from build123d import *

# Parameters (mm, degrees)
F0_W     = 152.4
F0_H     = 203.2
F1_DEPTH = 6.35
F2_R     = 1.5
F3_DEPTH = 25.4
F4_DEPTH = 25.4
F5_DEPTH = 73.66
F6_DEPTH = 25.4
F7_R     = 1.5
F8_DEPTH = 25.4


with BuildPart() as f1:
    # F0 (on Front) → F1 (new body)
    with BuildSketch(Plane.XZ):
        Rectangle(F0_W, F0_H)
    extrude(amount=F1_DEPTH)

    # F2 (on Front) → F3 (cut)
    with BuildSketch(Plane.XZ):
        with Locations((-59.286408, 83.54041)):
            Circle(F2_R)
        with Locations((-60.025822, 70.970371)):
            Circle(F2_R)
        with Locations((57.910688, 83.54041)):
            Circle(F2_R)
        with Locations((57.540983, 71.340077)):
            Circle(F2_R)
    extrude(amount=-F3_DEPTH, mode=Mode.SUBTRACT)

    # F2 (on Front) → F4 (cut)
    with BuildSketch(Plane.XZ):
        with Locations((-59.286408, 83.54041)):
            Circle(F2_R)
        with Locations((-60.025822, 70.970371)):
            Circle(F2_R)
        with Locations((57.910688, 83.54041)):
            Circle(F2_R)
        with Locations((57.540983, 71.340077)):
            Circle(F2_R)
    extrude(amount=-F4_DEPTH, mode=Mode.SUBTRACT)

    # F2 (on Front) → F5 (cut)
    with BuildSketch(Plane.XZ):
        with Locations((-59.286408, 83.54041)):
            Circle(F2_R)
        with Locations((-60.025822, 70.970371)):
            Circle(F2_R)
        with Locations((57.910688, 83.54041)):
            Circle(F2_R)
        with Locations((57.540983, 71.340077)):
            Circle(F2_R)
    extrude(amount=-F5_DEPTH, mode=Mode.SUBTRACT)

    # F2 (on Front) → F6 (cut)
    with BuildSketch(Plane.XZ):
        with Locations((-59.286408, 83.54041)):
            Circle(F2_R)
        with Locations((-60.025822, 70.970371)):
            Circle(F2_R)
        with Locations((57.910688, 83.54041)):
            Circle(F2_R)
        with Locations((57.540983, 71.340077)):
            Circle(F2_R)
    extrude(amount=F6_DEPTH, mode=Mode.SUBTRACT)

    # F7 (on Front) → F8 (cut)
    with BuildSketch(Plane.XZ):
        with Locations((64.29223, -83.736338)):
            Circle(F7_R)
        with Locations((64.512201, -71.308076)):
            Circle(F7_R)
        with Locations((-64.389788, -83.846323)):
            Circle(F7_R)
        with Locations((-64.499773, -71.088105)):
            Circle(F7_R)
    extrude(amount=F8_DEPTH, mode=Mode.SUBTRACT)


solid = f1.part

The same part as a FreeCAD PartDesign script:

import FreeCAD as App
import Part
import Sketcher
Q = App.Units.Quantity

doc = App.newDocument("Part")
body = doc.addObject("PartDesign::Body", "Body")

sketch1 = body.newObject("Sketcher::SketchObject", "Sketch")
sketch1.AttachmentSupport = (doc.getObject("XZ_Plane"), [""])
sketch1.MapMode = "FlatFace"
sketch1.addGeometry([
    Part.LineSegment(App.Vector(-76, 102, 0), App.Vector(-76, -102, 0)),
    Part.LineSegment(App.Vector(-76, -102, 0), App.Vector(76, -102, 0)),
    Part.LineSegment(App.Vector(76, -102, 0), App.Vector(76, 102, 0)),
    Part.LineSegment(App.Vector(76, 102, 0), App.Vector(-76, 102, 0)),
], False)
sketch1.addConstraint([
    Sketcher.Constraint("Coincident", 0, 2, 1, 1),
    Sketcher.Constraint("Coincident", 1, 2, 2, 1),
    Sketcher.Constraint("Coincident", 2, 2, 3, 1),
    Sketcher.Constraint("Coincident", 3, 2, 0, 1),
    Sketcher.Constraint("Vertical", 0),
    Sketcher.Constraint("Horizontal", 1),
    Sketcher.Constraint("Vertical", 2),
    Sketcher.Constraint("Horizontal", 3),
    Sketcher.Constraint("Symmetric", 0, 2, 2, 2, -1, 1),
    Sketcher.Constraint("DistanceX", 1, 1, 1, 2, Q("6 in")),
    Sketcher.Constraint("DistanceY", 0, 2, 0, 1, Q("8 in")),
])
pad1 = body.newObject("PartDesign::Pad", "Pad")
pad1.Profile = sketch1
pad1.Length = Q("0.25 in")

sketch2 = body.newObject("Sketcher::SketchObject", "Sketch001")
sketch2.AttachmentSupport = (doc.getObject("XZ_Plane"), [""])
sketch2.MapMode = "FlatFace"
sketch2.addGeometry([
    Part.Circle(App.Vector(-59.3, 83.5, 0), App.Vector(0, 0, 1), 1.5),
    Part.Circle(App.Vector(-60, 71, 0), App.Vector(0, 0, 1), 1.5),
    Part.Circle(App.Vector(57.9, 83.5, 0), App.Vector(0, 0, 1), 1.5),
    Part.Circle(App.Vector(57.5, 71.3, 0), App.Vector(0, 0, 1), 1.5),
], False)
sketch2.addConstraint([
    Sketcher.Constraint("Equal", 0, 1),
    Sketcher.Constraint("Equal", 1, 2),
    Sketcher.Constraint("Equal", 2, 3),
    Sketcher.Constraint("Horizontal", 0, 3, 2, 3),
    Sketcher.Constraint("Diameter", 0, 3.0),
    Sketcher.Constraint("DistanceX", 0, 3, -1, 1, 59.286408),
    Sketcher.Constraint("DistanceY", -1, 1, 0, 3, 83.54041),
    Sketcher.Constraint("DistanceX", 1, 3, -1, 1, 60.025822),
    Sketcher.Constraint("DistanceY", -1, 1, 1, 3, 70.970371),
    Sketcher.Constraint("DistanceX", 1, 3, 2, 3, 117.93651),
    Sketcher.Constraint("DistanceX", 0, 3, 3, 3, 116.827391),
    Sketcher.Constraint("DistanceY", -1, 1, 3, 3, 71.340077),
])
pocket1 = body.newObject("PartDesign::Pocket", "Pocket")
pocket1.Profile = sketch2
pocket1.Length = Q("1 in")

sketch3 = body.newObject("Sketcher::SketchObject", "Sketch002")
sketch3.AttachmentSupport = (doc.getObject("XZ_Plane"), [""])
sketch3.MapMode = "FlatFace"
sketch3.addGeometry([
    Part.Circle(App.Vector(-59.3, 83.5, 0), App.Vector(0, 0, 1), 1.5),
    Part.Circle(App.Vector(-60, 71, 0), App.Vector(0, 0, 1), 1.5),
    Part.Circle(App.Vector(57.9, 83.5, 0), App.Vector(0, 0, 1), 1.5),
    Part.Circle(App.Vector(57.5, 71.3, 0), App.Vector(0, 0, 1), 1.5),
], False)
sketch3.addConstraint([
    Sketcher.Constraint("Equal", 0, 1),
    Sketcher.Constraint("Equal", 1, 2),
    Sketcher.Constraint("Equal", 2, 3),
    Sketcher.Constraint("Horizontal", 0, 3, 2, 3),
    Sketcher.Constraint("Diameter", 0, 3.0),
    Sketcher.Constraint("DistanceX", 0, 3, -1, 1, 59.286408),
    Sketcher.Constraint("DistanceY", -1, 1, 0, 3, 83.54041),
    Sketcher.Constraint("DistanceX", 1, 3, -1, 1, 60.025822),
    Sketcher.Constraint("DistanceY", -1, 1, 1, 3, 70.970371),
    Sketcher.Constraint("DistanceX", 1, 3, 2, 3, 117.93651),
    Sketcher.Constraint("DistanceX", 0, 3, 3, 3, 116.827391),
    Sketcher.Constraint("DistanceY", -1, 1, 3, 3, 71.340077),
])
pocket2 = body.newObject("PartDesign::Pocket", "Pocket001")
pocket2.Profile = sketch3
pocket2.Length = Q("1 in")

sketch4 = body.newObject("Sketcher::SketchObject", "Sketch003")
sketch4.AttachmentSupport = (doc.getObject("XZ_Plane"), [""])
sketch4.MapMode = "FlatFace"
sketch4.addGeometry([
    Part.Circle(App.Vector(-59.3, 83.5, 0), App.Vector(0, 0, 1), 1.5),
    Part.Circle(App.Vector(-60, 71, 0), App.Vector(0, 0, 1), 1.5),
    Part.Circle(App.Vector(57.9, 83.5, 0), App.Vector(0, 0, 1), 1.5),
    Part.Circle(App.Vector(57.5, 71.3, 0), App.Vector(0, 0, 1), 1.5),
], False)
sketch4.addConstraint([
    Sketcher.Constraint("Equal", 0, 1),
    Sketcher.Constraint("Equal", 1, 2),
    Sketcher.Constraint("Equal", 2, 3),
    Sketcher.Constraint("Horizontal", 0, 3, 2, 3),
    Sketcher.Constraint("Diameter", 0, 3.0),
    Sketcher.Constraint("DistanceX", 0, 3, -1, 1, 59.286408),
    Sketcher.Constraint("DistanceY", -1, 1, 0, 3, 83.54041),
    Sketcher.Constraint("DistanceX", 1, 3, -1, 1, 60.025822),
    Sketcher.Constraint("DistanceY", -1, 1, 1, 3, 70.970371),
    Sketcher.Constraint("DistanceX", 1, 3, 2, 3, 117.93651),
    Sketcher.Constraint("DistanceX", 0, 3, 3, 3, 116.827391),
    Sketcher.Constraint("DistanceY", -1, 1, 3, 3, 71.340077),
])
pocket3 = body.newObject("PartDesign::Pocket", "Pocket002")
pocket3.Profile = sketch4
pocket3.Length = Q("2.9 in")

sketch5 = body.newObject("Sketcher::SketchObject", "Sketch004")
sketch5.AttachmentSupport = (doc.getObject("XZ_Plane"), [""])
sketch5.MapMode = "FlatFace"
sketch5.addGeometry([
    Part.Circle(App.Vector(-59.3, 83.5, 0), App.Vector(0, 0, 1), 1.5),
    Part.Circle(App.Vector(-60, 71, 0), App.Vector(0, 0, 1), 1.5),
    Part.Circle(App.Vector(57.9, 83.5, 0), App.Vector(0, 0, 1), 1.5),
    Part.Circle(App.Vector(57.5, 71.3, 0), App.Vector(0, 0, 1), 1.5),
], False)
sketch5.addConstraint([
    Sketcher.Constraint("Equal", 0, 1),
    Sketcher.Constraint("Equal", 1, 2),
    Sketcher.Constraint("Equal", 2, 3),
    Sketcher.Constraint("Horizontal", 0, 3, 2, 3),
    Sketcher.Constraint("Diameter", 0, 3.0),
    Sketcher.Constraint("DistanceX", 0, 3, -1, 1, 59.286408),
    Sketcher.Constraint("DistanceY", -1, 1, 0, 3, 83.54041),
    Sketcher.Constraint("DistanceX", 1, 3, -1, 1, 60.025822),
    Sketcher.Constraint("DistanceY", -1, 1, 1, 3, 70.970371),
    Sketcher.Constraint("DistanceX", 1, 3, 2, 3, 117.93651),
    Sketcher.Constraint("DistanceX", 0, 3, 3, 3, 116.827391),
    Sketcher.Constraint("DistanceY", -1, 1, 3, 3, 71.340077),
])
pocket4 = body.newObject("PartDesign::Pocket", "Pocket003")
pocket4.Profile = sketch5
pocket4.Length = Q("1 in")
pocket4.Reversed = True

sketch6 = body.newObject("Sketcher::SketchObject", "Sketch005")
sketch6.AttachmentSupport = (doc.getObject("XZ_Plane"), [""])
sketch6.MapMode = "FlatFace"
sketch6.addGeometry([
    Part.Circle(App.Vector(64.3, -83.7, 0), App.Vector(0, 0, 1), 1.5),
    Part.Circle(App.Vector(64.5, -71.3, 0), App.Vector(0, 0, 1), 1.5),
    Part.Circle(App.Vector(-64.4, -83.8, 0), App.Vector(0, 0, 1), 1.5),
    Part.Circle(App.Vector(-64.5, -71.1, 0), App.Vector(0, 0, 1), 1.5),
], False)
sketch6.addConstraint([
    Sketcher.Constraint("Equal", 0, 1),
    Sketcher.Constraint("Equal", 1, 2),
    Sketcher.Constraint("Equal", 2, 3),
    Sketcher.Constraint("Diameter", 0, 3.0),
    Sketcher.Constraint("DistanceX", -1, 1, 1, 3, 64.512201),
    Sketcher.Constraint("DistanceX", -1, 1, 0, 3, 64.29223),
    Sketcher.Constraint("DistanceY", 0, 3, -1, 1, 83.736338),
    Sketcher.Constraint("DistanceX", 2, 3, 0, 3, 128.682018),
    Sketcher.Constraint("DistanceY", 1, 3, 3, 3, 0.219971),
    Sketcher.Constraint("DistanceY", 1, 3, -1, 1, 71.308076),
    Sketcher.Constraint("DistanceY", 2, 3, -1, 1, 83.846323),
    Sketcher.Constraint("DistanceX", 3, 3, -1, 1, 64.499773),
])
pocket5 = body.newObject("PartDesign::Pocket", "Pocket004")
pocket5.Profile = sketch6
pocket5.Length = Q("1 in")
pocket5.Reversed = True

doc.recompute()
